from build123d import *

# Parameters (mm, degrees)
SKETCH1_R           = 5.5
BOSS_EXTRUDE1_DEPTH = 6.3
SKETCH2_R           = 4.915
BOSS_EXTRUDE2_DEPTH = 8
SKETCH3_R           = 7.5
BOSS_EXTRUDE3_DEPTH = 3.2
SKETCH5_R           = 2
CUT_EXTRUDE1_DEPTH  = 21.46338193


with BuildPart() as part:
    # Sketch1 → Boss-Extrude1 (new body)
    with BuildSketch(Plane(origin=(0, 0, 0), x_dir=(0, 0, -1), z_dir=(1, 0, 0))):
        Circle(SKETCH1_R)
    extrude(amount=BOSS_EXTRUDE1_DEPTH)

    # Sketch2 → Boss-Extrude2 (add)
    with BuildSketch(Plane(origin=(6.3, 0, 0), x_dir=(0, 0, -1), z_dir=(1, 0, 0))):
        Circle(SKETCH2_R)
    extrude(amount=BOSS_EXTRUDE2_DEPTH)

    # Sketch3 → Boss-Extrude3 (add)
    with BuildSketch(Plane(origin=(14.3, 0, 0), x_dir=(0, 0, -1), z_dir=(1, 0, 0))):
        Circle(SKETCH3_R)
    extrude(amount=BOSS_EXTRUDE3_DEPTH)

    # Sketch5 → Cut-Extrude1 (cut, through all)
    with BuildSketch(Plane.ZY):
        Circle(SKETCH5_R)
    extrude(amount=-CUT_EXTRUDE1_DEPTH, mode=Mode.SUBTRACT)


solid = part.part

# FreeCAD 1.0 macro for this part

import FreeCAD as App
import Part
import Sketcher
Q = App.Units.Quantity

doc = App.newDocument("Part")
params = doc.addObject("Spreadsheet::Sheet", "Params")
for row, (alias, value) in enumerate([
    ("sketch1_diameter", "11 mm"),
    ("pad1_length", "6.3 mm"),
    ("sketch2_diameter", "9.83 mm"),
    ("pad2_length", "8 mm"),
    ("sketch3_diameter", "15 mm"),
    ("pad3_length", "3.2 mm"),
    ("sketch4_diameter", "4 mm"),
], start=1):
    params.set(f"A{row}", alias)
    params.set(f"B{row}", "=" + value)
    params.setAlias(f"B{row}", alias)

body = doc.addObject("PartDesign::Body", "Body")

sketch1 = body.newObject("Sketcher::SketchObject", "Sketch")
sketch1.AttachmentSupport = (doc.getObject("YZ_Plane"), [""])
sketch1.MapMode = "FlatFace"
sketch1.addGeometry(Part.Circle(App.Vector(0, 0, 0), App.Vector(0, 0, 1), 6), False)
sketch1.addConstraint(Sketcher.Constraint("Coincident", 0, 3, -1, 1))
sketch1.addConstraint(Sketcher.Constraint("Diameter", 0, Q("11 mm")))
sketch1.setExpression("Constraints[1]", "Params.sketch1_diameter")
pad1 = body.newObject("PartDesign::Pad", "Pad")
pad1.Profile = sketch1
pad1.setExpression("Length", "Params.pad1_length")

sketch2 = body.newObject("Sketcher::SketchObject", "Sketch001")
sketch2.AttachmentSupport = (doc.getObject("YZ_Plane"), [""])
sketch2.MapMode = "FlatFace"
sketch2.AttachmentOffset = App.Placement(App.Vector(0, 0, 6.3), App.Rotation())
sketch2.addGeometry(Part.Circle(App.Vector(0, 0, 0), App.Vector(0, 0, 1), 4.9), False)
sketch2.addConstraint(Sketcher.Constraint("Coincident", 0, 3, -1, 1))
sketch2.addConstraint(Sketcher.Constraint("Diameter", 0, Q("9.83 mm")))
sketch2.setExpression("Constraints[1]", "Params.sketch2_diameter")
pad2 = body.newObject("PartDesign::Pad", "Pad001")
pad2.Profile = sketch2
pad2.setExpression("Length", "Params.pad2_length")

sketch3 = body.newObject("Sketcher::SketchObject", "Sketch002")
sketch3.AttachmentSupport = (doc.getObject("YZ_Plane"), [""])
sketch3.MapMode = "FlatFace"
sketch3.AttachmentOffset = App.Placement(App.Vector(0, 0, 14.3), App.Rotation())
sketch3.addGeometry(Part.Circle(App.Vector(0, 0, 0), App.Vector(0, 0, 1), 8), False)
sketch3.addConstraint(Sketcher.Constraint("Coincident", 0, 3, -1, 1))
sketch3.addConstraint(Sketcher.Constraint("Diameter", 0, Q("15 mm")))
sketch3.setExpression("Constraints[1]", "Params.sketch3_diameter")
pad3 = body.newObject("PartDesign::Pad", "Pad002")
pad3.Profile = sketch3
pad3.setExpression("Length", "Params.pad3_length")

sketch4 = body.newObject("Sketcher::SketchObject", "Sketch003")
sketch4.AttachmentSupport = (doc.getObject("YZ_Plane"), [""])
sketch4.MapMode = "FlatFace"
sketch4.addGeometry(Part.Circle(App.Vector(0, 0, 0), App.Vector(0, 0, 1), 2), False)
sketch4.addConstraint(Sketcher.Constraint("Coincident", 0, 3, -1, 1))
sketch4.addConstraint(Sketcher.Constraint("Diameter", 0, Q("4 mm")))
sketch4.setExpression("Constraints[1]", "Params.sketch4_diameter")
pocket1 = body.newObject("PartDesign::Pocket", "Pocket")
pocket1.Profile = sketch4
pocket1.Type = "ThroughAll"
pocket1.Reversed = True

doc.recompute()
